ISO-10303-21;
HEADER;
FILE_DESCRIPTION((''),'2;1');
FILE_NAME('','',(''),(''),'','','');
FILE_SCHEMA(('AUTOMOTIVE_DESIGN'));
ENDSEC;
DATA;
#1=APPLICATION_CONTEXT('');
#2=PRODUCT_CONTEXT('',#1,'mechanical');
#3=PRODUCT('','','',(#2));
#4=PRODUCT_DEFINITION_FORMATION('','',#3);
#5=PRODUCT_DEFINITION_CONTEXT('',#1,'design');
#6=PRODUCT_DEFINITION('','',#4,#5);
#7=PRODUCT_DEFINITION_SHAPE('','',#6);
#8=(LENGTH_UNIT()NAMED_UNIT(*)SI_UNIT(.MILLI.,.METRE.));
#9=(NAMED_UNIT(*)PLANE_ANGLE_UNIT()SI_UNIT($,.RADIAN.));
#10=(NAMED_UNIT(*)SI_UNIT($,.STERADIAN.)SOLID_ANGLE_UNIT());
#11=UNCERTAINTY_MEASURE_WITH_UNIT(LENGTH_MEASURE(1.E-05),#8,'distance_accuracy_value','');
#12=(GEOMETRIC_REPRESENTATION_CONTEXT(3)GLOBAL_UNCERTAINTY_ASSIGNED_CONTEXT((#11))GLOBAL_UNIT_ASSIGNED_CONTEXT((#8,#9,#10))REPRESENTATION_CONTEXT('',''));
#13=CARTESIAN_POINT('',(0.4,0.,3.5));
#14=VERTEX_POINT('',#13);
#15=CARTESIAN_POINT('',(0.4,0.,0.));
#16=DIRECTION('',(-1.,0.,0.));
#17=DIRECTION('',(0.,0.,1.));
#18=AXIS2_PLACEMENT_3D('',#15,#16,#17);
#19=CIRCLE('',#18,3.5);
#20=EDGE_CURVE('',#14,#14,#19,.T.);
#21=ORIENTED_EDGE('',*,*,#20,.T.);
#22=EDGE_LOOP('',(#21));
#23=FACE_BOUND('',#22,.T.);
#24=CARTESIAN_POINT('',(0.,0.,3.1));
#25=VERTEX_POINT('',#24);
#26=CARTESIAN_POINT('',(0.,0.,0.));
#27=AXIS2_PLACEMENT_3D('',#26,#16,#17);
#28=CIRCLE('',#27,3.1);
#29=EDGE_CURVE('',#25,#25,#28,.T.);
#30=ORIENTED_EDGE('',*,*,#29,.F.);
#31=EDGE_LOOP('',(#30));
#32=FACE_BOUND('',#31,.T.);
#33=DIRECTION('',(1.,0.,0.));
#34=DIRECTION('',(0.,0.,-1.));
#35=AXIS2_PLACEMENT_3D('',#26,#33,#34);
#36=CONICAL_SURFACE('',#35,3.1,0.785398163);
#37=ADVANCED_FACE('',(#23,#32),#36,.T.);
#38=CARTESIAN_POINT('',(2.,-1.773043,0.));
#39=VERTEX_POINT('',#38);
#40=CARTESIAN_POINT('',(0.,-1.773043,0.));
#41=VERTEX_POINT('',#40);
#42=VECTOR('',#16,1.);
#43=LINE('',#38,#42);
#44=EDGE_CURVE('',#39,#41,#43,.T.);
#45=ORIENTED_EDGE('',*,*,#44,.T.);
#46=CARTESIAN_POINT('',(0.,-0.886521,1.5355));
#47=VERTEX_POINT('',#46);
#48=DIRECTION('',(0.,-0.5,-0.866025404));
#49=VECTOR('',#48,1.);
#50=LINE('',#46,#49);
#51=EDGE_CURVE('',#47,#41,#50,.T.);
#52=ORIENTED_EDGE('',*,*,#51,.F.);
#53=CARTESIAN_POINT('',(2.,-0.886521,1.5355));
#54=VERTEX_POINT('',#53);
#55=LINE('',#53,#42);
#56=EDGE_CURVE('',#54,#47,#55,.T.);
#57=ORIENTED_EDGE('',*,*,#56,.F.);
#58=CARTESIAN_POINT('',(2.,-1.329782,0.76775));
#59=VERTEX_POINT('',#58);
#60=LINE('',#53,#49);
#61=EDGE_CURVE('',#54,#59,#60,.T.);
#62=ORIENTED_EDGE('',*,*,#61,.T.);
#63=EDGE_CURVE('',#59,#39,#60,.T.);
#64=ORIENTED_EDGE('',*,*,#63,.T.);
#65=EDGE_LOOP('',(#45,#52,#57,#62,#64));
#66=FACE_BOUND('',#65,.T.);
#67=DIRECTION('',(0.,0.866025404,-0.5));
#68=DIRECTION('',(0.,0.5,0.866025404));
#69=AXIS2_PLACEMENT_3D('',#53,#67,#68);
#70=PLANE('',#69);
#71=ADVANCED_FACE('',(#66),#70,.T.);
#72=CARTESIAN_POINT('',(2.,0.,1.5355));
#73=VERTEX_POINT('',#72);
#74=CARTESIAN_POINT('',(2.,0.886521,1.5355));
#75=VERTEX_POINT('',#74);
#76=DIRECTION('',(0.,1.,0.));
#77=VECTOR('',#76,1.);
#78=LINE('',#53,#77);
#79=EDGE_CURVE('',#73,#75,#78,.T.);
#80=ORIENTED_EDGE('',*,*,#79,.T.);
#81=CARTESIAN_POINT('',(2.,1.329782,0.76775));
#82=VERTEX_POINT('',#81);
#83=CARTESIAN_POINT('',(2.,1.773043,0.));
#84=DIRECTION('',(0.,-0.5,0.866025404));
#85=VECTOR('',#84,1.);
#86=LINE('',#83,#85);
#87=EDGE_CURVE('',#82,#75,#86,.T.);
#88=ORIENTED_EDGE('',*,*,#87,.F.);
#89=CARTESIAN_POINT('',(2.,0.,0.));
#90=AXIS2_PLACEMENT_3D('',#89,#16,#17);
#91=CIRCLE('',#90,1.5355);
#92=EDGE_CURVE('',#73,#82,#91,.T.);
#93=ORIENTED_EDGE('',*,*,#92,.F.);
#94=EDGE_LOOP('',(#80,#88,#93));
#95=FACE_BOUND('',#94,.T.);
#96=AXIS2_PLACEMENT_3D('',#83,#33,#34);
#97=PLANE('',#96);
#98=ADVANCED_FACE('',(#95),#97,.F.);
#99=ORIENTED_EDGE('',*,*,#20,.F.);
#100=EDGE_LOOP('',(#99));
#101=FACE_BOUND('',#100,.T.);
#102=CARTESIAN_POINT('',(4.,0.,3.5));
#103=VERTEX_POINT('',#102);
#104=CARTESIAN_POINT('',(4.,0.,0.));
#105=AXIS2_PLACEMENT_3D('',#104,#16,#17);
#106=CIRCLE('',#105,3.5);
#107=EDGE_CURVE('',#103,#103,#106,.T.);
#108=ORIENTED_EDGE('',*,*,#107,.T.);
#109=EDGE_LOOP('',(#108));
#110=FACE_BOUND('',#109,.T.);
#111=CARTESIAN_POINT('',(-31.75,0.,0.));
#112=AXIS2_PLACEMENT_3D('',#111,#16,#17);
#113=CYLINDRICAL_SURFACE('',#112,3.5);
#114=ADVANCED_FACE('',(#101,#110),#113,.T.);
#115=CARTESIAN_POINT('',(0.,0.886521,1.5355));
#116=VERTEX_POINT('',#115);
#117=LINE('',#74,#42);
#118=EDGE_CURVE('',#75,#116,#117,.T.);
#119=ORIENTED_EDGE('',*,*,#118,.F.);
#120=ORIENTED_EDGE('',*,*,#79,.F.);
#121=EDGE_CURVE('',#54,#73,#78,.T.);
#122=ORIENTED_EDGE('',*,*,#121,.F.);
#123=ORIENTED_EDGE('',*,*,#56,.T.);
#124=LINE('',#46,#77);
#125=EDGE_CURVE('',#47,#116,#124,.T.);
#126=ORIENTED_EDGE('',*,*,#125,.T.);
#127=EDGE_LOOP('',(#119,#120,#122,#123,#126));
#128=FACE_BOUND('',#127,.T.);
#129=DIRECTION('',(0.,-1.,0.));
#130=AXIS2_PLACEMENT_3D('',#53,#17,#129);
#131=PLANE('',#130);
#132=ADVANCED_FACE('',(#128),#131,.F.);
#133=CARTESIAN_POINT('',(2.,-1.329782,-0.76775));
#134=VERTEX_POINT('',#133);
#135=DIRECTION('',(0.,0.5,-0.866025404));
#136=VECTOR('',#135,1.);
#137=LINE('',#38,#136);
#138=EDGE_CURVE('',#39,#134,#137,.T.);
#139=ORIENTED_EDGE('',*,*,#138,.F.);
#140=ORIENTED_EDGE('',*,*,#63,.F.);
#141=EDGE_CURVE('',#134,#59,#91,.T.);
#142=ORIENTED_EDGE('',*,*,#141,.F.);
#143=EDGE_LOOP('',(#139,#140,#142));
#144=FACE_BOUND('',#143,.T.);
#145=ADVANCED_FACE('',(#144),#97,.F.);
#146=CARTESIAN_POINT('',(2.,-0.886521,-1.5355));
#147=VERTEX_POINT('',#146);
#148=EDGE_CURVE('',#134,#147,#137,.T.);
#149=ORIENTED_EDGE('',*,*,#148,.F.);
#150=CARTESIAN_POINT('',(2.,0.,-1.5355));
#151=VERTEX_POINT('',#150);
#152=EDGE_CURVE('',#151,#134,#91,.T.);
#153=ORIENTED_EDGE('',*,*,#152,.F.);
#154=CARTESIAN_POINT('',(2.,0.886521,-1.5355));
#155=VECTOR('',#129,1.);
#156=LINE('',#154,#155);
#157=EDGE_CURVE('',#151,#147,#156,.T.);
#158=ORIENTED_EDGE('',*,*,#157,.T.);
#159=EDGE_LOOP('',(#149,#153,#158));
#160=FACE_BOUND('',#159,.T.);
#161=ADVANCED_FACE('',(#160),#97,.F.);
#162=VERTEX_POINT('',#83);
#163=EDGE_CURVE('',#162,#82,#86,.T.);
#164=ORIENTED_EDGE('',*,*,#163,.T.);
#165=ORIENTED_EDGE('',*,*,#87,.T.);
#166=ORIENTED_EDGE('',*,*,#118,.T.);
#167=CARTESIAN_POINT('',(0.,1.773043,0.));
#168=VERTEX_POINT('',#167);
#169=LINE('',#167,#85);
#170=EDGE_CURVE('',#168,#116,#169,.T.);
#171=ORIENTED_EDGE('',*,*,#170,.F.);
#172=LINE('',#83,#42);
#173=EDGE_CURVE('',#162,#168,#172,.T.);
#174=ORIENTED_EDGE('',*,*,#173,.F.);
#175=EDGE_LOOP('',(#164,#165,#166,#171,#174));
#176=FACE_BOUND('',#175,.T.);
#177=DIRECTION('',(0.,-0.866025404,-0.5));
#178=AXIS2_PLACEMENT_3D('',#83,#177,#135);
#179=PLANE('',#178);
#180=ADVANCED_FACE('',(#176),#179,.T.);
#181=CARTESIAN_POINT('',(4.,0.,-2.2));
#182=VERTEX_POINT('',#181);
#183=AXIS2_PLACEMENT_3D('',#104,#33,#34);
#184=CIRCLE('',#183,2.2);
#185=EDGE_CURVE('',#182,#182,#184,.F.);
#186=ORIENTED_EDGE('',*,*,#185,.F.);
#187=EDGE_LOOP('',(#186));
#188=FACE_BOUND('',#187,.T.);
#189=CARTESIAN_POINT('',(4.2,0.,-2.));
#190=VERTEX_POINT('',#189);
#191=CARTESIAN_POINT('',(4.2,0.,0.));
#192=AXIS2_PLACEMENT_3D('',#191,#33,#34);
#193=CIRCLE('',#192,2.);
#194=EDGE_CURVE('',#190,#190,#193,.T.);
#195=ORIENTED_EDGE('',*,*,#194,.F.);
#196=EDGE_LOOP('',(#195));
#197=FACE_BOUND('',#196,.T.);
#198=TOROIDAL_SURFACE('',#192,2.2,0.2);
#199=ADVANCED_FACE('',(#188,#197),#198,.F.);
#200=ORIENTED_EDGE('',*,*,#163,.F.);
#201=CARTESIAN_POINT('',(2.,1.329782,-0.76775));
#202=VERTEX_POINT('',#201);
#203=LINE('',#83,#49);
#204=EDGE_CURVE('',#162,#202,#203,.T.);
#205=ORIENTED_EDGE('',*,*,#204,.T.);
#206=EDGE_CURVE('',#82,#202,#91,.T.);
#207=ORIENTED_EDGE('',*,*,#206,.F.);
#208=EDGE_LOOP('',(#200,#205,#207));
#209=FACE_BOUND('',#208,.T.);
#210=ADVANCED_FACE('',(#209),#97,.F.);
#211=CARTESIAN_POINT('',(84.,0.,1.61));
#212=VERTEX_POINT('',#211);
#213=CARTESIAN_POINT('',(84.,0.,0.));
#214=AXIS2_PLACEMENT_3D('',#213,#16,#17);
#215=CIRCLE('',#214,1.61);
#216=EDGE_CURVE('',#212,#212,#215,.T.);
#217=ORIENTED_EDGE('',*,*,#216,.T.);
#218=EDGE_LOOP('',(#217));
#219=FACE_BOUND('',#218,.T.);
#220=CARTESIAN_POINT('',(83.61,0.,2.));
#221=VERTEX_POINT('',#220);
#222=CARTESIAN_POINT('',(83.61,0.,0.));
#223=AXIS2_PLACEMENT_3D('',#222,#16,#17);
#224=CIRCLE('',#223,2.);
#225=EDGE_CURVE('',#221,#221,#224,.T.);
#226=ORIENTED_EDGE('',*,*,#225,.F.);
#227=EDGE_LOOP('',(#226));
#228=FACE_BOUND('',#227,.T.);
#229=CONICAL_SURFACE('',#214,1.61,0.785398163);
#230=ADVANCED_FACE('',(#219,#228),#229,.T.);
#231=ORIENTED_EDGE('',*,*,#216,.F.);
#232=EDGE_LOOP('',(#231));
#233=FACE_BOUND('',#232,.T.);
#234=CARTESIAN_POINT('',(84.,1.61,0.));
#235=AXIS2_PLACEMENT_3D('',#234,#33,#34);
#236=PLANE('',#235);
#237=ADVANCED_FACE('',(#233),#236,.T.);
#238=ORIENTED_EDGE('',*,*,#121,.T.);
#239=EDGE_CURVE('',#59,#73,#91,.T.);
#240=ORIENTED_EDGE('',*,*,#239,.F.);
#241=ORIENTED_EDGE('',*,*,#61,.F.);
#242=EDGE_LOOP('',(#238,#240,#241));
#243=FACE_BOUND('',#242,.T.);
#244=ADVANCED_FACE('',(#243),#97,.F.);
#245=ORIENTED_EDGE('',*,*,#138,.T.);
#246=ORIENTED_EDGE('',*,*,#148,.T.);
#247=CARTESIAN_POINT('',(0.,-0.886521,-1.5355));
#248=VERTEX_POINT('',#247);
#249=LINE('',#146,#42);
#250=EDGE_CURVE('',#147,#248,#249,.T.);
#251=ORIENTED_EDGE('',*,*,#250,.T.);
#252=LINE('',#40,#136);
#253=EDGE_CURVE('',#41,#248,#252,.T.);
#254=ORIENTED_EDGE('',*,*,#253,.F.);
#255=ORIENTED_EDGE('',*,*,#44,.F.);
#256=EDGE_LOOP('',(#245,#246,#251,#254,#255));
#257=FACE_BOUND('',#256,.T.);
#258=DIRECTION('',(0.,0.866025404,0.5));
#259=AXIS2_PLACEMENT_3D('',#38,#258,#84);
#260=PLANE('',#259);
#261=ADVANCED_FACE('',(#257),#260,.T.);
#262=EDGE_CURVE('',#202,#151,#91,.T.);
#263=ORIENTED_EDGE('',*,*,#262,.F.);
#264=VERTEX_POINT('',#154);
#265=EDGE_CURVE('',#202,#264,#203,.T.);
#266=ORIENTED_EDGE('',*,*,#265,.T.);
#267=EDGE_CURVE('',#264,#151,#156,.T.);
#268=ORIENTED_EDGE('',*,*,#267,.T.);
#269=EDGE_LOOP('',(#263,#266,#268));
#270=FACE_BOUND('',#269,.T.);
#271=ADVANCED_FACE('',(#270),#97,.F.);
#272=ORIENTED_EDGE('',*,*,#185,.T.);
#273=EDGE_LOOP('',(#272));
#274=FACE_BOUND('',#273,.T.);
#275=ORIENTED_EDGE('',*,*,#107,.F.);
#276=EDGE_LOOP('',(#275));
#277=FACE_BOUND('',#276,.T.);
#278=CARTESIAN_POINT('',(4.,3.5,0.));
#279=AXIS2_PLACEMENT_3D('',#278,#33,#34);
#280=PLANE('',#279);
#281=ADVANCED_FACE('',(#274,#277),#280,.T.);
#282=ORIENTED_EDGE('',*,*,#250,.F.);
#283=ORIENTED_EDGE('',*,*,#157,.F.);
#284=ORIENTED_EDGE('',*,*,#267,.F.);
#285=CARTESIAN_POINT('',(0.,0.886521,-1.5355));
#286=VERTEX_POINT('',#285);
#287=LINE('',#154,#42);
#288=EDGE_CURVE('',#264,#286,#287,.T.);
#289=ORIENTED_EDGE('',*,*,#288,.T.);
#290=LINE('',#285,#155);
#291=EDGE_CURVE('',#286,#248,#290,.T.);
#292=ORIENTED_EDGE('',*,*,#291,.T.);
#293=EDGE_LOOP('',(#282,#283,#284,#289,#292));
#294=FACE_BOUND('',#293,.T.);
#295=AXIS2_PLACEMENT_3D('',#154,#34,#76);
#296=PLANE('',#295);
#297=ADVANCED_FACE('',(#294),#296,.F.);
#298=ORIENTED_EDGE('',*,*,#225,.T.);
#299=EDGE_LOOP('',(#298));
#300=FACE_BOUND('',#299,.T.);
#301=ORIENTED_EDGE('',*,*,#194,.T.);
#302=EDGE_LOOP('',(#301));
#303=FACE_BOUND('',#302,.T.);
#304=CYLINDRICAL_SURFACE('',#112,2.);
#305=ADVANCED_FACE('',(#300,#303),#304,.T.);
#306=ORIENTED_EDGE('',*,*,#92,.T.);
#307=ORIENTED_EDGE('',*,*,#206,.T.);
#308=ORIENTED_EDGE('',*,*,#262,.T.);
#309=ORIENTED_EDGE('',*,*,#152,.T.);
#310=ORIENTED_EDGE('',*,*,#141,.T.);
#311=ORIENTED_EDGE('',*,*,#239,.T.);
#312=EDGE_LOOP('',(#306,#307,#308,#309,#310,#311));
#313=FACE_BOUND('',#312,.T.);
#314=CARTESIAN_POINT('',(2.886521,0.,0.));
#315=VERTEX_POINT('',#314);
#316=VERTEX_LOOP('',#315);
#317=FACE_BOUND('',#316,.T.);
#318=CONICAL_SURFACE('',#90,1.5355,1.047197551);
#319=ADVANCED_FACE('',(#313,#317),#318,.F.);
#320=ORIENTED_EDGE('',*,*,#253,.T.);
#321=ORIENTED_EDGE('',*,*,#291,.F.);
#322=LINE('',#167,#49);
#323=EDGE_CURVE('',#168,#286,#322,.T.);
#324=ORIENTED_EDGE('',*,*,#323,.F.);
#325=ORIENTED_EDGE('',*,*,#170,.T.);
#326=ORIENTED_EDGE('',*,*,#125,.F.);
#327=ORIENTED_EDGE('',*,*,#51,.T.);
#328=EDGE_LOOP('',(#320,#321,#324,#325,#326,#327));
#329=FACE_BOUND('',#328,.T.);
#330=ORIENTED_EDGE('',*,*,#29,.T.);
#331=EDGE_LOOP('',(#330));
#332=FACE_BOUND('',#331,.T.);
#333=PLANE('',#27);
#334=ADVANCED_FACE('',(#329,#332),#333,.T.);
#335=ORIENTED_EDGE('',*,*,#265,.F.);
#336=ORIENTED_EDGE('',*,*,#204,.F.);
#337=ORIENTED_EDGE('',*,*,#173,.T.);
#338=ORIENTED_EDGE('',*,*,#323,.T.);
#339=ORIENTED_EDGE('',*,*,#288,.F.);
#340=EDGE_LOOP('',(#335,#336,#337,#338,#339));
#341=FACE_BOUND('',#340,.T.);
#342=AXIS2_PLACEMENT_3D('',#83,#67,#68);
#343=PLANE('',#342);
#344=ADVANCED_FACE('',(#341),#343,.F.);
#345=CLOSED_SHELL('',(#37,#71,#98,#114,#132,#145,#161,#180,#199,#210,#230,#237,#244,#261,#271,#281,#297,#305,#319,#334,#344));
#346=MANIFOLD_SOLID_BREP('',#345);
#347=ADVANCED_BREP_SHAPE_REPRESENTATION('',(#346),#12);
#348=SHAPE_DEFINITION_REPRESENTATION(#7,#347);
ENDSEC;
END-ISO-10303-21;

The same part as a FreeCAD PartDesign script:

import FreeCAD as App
import Part
import Sketcher
from FreeCAD import Vector
Q = App.Units.Quantity


def edges_at(feature, points):
    """Names of the edges that pass closest to the given points."""
    edges = feature.Shape.Edges
    near = lambda p: min(range(len(edges)), key=lambda i: edges[i].distToShape(Part.Vertex(*p))[0])
    return sorted({f"Edge{near(p) + 1}" for p in points})


def add_polygon(sketch, points):
    """Adds a closed chain of lines whose ends are joined by coincident constraints."""
    first, n = sketch.GeometryCount, len(points)
    for a, b in zip(points, points[1:] + points[:1]):
        sketch.addGeometry(Part.LineSegment(App.Vector(*a, 0), App.Vector(*b, 0)), False)
    for i in range(n):
        sketch.addConstraint(Sketcher.Constraint("Coincident", first + i, 2, first + (i + 1) % n, 1))

doc = App.newDocument("Part")
body = doc.addObject("PartDesign::Body", "Body")

sketch1 = doc.addObject("Sketcher::SketchObject", "Sketch")
body.addObject(sketch1)
sketch1.AttachmentSupport = (doc.XY_Plane, [""])
sketch1.MapMode = "FlatFace"
add_polygon(sketch1, [(0, 3.1), (0, 0), (84, 0), (84, 1.6), (83.6, 2), (4, 2), (4, 3.5), (0.4, 3.5)])
sketch1.addConstraint(Sketcher.Constraint("Vertical", 0))
sketch1.addConstraint(Sketcher.Constraint("Horizontal", 1))
sketch1.addConstraint(Sketcher.Constraint("Vertical", 2))
sketch1.addConstraint(Sketcher.Constraint("Horizontal", 4))
sketch1.addConstraint(Sketcher.Constraint("Vertical", 5))
sketch1.addConstraint(Sketcher.Constraint("Horizontal", 6))
sketch1.addConstraint(Sketcher.Constraint("Coincident", 0, 2, -1, 1))
sketch1.addConstraint(Sketcher.Constraint("Perpendicular", 3, 7))
sketch1.addConstraint(Sketcher.Constraint("DistanceX", 1, 1, 1, 2, 84.0))
sketch1.addConstraint(Sketcher.Constraint("Angle", 3, Q("135 deg")))
sketch1.addConstraint(Sketcher.Constraint("DistanceX", 6, 2, 6, 1, 3.6))
sketch1.addConstraint(Sketcher.Constraint("DistanceY", 0, 2, 0, 1, 3.1))
sketch1.addConstraint(Sketcher.Constraint("DistanceY", 5, 1, 5, 2, 1.5))
sketch1.addConstraint(Sketcher.Constraint("DistanceY", -1, 1, 3, 2, 2.0))
sketch1.addConstraint(Sketcher.Constraint("DistanceX", 4, 2, 4, 1, 79.61))
revolution = doc.addObject("PartDesign::Revolution", "Revolution")
body.addObject(revolution)
revolution.Profile = sketch1
revolution.ReferenceAxis = (sketch1, ["H_Axis"])
revolution.Angle = 360
doc.recompute()

fillet = doc.addObject("PartDesign::Fillet", "Fillet")
body.addObject(fillet)
fillet.Base = (revolution, edges_at(revolution, [(4, 0, -2)]))
fillet.Radius = 0.2

sketch2 = doc.addObject("Sketcher::SketchObject", "Sketch001")
body.addObject(sketch2)
sketch2.AttachmentSupport = (doc.XY_Plane, [""])
sketch2.MapMode = "FlatFace"
add_polygon(sketch2, [(2, 1.5), (0, 1.5), (0, 0), (2.9, 0)])
sketch2.addConstraint(Sketcher.Constraint("Horizontal", 0))
sketch2.addConstraint(Sketcher.Constraint("Vertical", 1))
sketch2.addConstraint(Sketcher.Constraint("Horizontal", 2))
sketch2.addConstraint(Sketcher.Constraint("Coincident", 1, 2, -1, 1))
sketch2.addConstraint(Sketcher.Constraint("DistanceX", 0, 2, 0, 1, 2.0))
sketch2.addConstraint(Sketcher.Constraint("Angle", 3, Q("120 deg")))
sketch2.addConstraint(Sketcher.Constraint("DistanceY", 1, 2, 1, 1, 1.5355))
groove = doc.addObject("PartDesign::Groove", "Groove")
body.addObject(groove)
groove.Profile = sketch2
groove.ReferenceAxis = (sketch2, ["H_Axis"])
groove.Angle = 360

sketch3 = doc.addObject("Sketcher::SketchObject", "Sketch002")
body.addObject(sketch3)
sketch3.AttachmentSupport = (doc.YZ_Plane, [""])
sketch3.MapMode = "FlatFace"
add_polygon(sketch3, [(1.8, 0), (0.9, -1.5), (-0.9, -1.5), (-1.8, 0), (-0.9, 1.5), (0.9, 1.5)])
sketch3.addConstraint(Sketcher.Constraint("Horizontal", 1))
sketch3.addConstraint(Sketcher.Constraint("Horizontal", 4))
sketch3.addConstraint(Sketcher.Constraint("Symmetric", 0, 2, 3, 2, -1, 1))
sketch3.addConstraint(Sketcher.Constraint("Symmetric", 2, 2, 5, 2, -1, 1))
sketch3.addConstraint(Sketcher.Constraint("PointOnObject", 2, 2, -1))
sketch3.addConstraint(Sketcher.Constraint("Parallel", 2, 5))
sketch3.addConstraint(Sketcher.Constraint("Vertical", 1, 2, 3, 2))
sketch3.addConstraint(Sketcher.Constraint("Angle", 0, Q("-120 deg")))
sketch3.addConstraint(Sketcher.Constraint("DistanceY", 1, 2, 3, 2, 3.071))
sketch3.addConstraint(Sketcher.Constraint("DistanceX", 1, 2, 1, 1, 1.773043))
pocket1 = doc.addObject("PartDesign::Pocket", "Pocket")
body.addObject(pocket1)
pocket1.Profile = sketch3
pocket1.Length = 2
pocket1.Reversed = True

doc.recompute()
